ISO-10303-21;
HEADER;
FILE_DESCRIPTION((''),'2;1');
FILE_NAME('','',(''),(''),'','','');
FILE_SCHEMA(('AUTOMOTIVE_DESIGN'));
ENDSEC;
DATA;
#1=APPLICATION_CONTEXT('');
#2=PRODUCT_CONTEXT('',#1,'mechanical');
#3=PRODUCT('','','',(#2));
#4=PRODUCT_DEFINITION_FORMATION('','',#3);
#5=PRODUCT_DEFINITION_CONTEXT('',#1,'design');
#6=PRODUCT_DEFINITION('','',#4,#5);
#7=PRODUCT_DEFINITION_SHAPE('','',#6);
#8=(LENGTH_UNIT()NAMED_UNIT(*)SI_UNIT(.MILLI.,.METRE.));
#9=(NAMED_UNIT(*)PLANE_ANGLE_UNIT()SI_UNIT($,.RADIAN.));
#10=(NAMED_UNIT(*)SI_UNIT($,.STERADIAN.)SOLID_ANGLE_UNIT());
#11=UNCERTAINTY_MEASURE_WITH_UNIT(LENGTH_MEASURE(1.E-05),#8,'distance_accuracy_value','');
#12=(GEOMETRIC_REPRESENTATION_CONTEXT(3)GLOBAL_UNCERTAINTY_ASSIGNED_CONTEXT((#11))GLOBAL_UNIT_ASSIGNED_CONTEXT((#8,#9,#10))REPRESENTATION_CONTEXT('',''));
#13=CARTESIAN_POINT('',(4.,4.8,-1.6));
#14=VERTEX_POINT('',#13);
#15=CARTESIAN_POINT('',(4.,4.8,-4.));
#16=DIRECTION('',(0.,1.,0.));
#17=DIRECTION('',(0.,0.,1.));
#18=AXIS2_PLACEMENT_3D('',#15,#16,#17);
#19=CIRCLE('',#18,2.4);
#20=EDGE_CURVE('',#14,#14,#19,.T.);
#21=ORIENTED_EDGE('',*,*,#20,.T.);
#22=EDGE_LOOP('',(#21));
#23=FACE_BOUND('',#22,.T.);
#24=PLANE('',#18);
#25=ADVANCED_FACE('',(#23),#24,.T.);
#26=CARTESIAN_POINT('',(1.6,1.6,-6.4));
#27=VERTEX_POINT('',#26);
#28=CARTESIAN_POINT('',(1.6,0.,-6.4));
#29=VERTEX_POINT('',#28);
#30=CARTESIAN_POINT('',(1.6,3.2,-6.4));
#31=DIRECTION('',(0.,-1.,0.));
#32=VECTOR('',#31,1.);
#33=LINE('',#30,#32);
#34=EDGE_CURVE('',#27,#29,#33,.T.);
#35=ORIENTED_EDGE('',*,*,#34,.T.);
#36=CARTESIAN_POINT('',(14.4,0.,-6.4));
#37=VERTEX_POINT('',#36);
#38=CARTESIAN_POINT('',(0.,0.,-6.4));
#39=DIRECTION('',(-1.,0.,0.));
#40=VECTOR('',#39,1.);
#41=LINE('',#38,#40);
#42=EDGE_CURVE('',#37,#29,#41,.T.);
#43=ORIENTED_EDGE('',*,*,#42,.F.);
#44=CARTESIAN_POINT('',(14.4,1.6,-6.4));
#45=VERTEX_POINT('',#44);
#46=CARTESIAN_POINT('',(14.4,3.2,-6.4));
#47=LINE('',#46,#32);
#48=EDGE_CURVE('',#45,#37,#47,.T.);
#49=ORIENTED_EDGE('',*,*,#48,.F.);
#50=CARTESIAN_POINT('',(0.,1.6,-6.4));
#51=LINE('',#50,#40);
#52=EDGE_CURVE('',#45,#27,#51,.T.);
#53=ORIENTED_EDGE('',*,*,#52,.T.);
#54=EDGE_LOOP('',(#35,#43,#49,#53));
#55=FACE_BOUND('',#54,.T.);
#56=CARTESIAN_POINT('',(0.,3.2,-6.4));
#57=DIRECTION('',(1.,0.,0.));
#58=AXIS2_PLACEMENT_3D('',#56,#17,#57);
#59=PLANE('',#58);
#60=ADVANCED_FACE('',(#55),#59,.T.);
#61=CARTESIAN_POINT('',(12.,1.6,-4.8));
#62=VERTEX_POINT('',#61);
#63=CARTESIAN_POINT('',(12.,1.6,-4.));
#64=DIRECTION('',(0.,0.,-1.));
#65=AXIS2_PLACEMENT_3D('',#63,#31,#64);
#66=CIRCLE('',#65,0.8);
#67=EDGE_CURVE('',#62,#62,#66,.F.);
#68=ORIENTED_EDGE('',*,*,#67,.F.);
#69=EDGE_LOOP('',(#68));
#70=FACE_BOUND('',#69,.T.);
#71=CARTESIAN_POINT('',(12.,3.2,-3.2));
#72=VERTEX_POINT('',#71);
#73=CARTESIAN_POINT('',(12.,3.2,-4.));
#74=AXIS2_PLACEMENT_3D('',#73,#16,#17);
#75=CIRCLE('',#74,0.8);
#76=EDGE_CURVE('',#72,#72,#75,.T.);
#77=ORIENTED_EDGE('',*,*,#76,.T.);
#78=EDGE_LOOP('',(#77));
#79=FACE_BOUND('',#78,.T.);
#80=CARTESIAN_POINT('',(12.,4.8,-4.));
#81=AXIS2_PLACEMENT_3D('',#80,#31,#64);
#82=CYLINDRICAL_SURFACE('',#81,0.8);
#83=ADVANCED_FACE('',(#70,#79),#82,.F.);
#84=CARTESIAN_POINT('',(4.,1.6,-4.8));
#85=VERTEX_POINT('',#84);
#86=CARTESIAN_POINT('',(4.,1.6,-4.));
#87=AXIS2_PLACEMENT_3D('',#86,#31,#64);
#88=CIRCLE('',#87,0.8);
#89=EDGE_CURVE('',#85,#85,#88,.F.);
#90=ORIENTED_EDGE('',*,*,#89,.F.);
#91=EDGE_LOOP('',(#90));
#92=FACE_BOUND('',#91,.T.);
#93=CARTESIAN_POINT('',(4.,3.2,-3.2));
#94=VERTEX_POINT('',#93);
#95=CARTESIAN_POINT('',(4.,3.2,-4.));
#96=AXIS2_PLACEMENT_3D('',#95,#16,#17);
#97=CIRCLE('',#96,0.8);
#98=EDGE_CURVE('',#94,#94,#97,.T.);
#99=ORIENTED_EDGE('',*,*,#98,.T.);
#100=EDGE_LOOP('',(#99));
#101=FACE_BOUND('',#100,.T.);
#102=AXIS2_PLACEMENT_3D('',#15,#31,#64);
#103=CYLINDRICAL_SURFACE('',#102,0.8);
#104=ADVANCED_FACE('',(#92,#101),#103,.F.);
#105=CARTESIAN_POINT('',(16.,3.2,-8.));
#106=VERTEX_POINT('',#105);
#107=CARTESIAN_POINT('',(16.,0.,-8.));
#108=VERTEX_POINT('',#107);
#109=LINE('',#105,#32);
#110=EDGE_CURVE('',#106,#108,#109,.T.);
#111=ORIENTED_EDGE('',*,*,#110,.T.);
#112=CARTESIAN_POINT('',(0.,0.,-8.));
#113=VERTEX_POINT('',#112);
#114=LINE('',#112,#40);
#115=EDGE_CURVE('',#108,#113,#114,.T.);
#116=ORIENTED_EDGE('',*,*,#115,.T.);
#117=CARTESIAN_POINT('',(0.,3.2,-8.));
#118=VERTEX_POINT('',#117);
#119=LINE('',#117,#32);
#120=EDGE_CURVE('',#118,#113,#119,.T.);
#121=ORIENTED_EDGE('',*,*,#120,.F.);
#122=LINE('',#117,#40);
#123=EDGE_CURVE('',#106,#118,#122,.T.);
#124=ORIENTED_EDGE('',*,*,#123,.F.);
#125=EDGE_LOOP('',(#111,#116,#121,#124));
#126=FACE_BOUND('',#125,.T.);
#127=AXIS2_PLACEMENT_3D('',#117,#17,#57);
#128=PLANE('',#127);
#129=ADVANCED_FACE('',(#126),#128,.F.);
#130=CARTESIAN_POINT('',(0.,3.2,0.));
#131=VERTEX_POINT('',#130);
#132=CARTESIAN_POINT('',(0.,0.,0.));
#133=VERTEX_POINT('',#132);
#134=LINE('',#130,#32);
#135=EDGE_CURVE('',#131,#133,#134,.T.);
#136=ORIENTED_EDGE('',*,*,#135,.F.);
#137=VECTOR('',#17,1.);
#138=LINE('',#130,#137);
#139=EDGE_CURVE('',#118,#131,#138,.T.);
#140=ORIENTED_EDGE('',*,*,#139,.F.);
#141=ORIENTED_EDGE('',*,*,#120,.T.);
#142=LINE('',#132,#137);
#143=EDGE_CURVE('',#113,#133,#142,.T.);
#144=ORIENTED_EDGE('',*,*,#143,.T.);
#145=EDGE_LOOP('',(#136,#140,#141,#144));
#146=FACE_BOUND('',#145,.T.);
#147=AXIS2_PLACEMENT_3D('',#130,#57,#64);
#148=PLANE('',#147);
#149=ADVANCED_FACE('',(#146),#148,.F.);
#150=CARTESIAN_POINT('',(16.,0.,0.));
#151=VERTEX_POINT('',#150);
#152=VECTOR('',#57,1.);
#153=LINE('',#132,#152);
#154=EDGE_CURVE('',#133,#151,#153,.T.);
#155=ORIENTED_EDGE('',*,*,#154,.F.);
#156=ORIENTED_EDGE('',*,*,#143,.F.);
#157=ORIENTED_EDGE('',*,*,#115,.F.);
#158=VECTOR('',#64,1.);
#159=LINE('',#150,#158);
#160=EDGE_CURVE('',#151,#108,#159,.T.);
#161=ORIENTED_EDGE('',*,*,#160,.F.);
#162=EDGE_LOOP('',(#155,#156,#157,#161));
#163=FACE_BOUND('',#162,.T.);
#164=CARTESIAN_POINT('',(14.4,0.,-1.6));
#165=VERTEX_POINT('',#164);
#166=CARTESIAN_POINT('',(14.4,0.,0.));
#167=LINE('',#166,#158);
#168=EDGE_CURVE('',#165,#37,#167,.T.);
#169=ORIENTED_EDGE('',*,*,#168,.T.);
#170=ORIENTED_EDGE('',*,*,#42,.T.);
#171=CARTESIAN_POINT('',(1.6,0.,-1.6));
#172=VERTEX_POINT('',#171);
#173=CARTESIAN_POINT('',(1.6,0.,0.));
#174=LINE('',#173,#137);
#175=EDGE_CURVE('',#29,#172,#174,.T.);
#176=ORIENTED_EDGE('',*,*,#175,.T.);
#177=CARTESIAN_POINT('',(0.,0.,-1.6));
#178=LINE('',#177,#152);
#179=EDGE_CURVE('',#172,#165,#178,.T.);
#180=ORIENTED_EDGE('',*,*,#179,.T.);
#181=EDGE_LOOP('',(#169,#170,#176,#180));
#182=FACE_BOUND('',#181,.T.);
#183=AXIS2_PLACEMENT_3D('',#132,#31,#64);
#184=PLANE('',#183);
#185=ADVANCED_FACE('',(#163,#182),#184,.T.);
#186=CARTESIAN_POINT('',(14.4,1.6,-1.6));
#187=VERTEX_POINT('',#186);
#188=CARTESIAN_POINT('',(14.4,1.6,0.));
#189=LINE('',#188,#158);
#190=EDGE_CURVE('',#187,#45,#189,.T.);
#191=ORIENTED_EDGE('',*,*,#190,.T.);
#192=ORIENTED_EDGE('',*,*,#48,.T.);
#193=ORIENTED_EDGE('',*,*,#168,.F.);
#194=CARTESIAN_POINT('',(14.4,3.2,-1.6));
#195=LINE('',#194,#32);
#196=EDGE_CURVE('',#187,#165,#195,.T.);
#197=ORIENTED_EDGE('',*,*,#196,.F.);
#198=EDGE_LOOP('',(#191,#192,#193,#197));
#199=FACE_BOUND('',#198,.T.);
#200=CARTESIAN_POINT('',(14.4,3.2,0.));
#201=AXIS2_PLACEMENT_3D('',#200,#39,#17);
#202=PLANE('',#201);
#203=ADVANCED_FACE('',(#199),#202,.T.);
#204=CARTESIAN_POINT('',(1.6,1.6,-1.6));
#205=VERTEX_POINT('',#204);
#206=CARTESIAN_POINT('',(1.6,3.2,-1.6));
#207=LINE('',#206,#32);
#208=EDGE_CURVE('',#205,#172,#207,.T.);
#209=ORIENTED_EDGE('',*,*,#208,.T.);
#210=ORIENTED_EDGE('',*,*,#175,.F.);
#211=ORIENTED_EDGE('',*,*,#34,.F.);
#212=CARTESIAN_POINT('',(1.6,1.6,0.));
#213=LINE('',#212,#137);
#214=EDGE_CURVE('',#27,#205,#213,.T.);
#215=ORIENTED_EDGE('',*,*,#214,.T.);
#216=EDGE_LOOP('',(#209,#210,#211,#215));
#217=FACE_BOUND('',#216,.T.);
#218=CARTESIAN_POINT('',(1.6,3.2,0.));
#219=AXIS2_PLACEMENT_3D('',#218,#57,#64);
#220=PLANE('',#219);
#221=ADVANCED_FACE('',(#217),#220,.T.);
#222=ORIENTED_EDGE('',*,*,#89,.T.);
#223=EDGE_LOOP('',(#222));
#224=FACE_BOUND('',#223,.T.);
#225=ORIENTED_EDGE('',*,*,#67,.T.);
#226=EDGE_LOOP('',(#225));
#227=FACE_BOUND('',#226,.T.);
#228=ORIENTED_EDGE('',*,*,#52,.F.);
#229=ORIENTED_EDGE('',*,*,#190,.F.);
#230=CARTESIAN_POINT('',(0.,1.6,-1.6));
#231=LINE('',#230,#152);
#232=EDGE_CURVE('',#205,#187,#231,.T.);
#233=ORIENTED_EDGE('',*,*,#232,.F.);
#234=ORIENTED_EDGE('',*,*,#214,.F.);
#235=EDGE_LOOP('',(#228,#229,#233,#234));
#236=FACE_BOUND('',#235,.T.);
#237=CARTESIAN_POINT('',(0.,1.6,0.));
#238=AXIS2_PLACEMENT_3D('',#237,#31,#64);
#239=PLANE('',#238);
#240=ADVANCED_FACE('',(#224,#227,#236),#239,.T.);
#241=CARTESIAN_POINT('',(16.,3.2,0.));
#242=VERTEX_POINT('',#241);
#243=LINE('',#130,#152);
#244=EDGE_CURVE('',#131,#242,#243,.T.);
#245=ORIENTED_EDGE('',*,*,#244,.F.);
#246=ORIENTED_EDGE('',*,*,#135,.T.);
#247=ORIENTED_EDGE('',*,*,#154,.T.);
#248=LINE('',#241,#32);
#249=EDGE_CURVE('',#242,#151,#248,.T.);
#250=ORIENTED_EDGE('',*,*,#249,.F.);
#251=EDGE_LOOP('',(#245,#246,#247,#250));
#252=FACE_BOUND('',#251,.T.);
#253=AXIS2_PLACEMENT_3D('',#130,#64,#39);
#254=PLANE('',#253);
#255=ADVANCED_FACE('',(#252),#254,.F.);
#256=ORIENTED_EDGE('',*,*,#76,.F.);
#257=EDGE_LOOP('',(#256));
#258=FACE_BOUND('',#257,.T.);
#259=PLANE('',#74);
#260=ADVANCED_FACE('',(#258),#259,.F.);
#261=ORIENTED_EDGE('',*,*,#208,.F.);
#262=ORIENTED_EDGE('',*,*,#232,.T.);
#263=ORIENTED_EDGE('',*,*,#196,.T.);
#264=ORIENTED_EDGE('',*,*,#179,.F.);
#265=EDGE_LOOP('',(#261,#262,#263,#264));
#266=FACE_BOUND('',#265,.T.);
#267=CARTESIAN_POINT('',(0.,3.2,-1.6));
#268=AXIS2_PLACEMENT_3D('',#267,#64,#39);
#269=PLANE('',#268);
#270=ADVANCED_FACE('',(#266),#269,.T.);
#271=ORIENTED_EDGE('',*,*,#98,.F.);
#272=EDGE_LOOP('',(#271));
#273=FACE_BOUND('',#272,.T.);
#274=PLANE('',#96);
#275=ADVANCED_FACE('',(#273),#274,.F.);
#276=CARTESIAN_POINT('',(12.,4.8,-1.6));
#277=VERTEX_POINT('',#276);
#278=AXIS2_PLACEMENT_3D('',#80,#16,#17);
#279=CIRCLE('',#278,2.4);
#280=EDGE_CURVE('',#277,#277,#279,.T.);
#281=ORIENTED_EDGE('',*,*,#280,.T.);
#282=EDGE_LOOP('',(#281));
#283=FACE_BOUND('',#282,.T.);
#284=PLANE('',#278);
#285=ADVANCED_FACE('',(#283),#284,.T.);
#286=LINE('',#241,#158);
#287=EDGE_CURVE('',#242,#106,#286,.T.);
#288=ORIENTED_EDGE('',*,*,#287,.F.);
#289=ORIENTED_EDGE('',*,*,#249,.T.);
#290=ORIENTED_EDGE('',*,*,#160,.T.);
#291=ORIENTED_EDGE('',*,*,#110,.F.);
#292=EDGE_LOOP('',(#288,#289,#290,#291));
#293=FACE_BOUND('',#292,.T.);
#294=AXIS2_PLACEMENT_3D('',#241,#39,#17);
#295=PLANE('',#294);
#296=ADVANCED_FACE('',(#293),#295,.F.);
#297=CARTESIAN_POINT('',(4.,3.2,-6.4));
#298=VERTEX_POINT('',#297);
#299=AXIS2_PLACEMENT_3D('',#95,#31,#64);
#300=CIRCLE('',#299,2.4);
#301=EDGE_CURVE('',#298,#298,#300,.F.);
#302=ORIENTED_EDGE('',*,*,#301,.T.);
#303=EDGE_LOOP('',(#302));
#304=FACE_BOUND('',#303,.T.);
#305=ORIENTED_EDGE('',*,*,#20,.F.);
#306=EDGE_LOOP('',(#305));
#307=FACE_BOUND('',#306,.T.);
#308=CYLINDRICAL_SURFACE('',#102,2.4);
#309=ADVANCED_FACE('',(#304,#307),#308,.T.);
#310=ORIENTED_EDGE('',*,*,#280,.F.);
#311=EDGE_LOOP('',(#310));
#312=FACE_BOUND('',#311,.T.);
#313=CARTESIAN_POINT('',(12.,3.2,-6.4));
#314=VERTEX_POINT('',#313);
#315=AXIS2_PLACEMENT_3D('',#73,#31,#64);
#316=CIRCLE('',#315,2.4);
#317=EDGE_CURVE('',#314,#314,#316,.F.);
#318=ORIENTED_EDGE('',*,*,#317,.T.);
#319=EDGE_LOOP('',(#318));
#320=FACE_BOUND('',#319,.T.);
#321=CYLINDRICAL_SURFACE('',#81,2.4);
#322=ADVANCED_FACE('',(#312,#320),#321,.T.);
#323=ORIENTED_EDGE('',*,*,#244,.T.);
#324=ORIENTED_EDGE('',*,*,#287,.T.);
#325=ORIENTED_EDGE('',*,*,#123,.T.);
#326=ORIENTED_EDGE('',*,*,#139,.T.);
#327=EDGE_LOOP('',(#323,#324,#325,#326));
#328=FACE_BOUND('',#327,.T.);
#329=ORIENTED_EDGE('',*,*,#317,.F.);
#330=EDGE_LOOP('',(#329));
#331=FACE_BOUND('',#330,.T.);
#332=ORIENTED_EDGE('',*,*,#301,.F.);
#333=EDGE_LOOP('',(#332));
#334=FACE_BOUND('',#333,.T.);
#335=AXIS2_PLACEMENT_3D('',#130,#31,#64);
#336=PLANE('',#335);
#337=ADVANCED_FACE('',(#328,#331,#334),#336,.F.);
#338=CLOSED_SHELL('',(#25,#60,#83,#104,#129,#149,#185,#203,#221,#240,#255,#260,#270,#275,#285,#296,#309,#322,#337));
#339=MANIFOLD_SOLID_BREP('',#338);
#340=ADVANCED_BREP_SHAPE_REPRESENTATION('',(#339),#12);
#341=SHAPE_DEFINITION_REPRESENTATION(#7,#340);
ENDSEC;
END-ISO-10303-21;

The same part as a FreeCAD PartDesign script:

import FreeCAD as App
import Part
import Sketcher

V = App.Vector


def faces_at(feature, points):
    """Names of the faces that lie closest to the given points."""
    faces = feature.Shape.Faces
    near = lambda p: min(range(len(faces)), key=lambda i: faces[i].distToShape(Part.Vertex(*p))[0])
    return sorted({f"Face{near(p) + 1}" for p in points})

doc = App.newDocument("Part")
body = doc.addObject("PartDesign::Body", "Body")

sketch1 = body.newObject("Sketcher::SketchObject", "Sketch")
sketch1.AttachmentSupport = (doc.getObject("XZ_Plane"), [""])
sketch1.MapMode = "FlatFace"
sketch1.addGeometry(Part.LineSegment(V(0, -8, 0), V(0, 0, 0)), False)
sketch1.addGeometry(Part.LineSegment(V(0, 0, 0), V(16, 0, 0)), False)
sketch1.addGeometry(Part.LineSegment(V(16, 0, 0), V(16, -8, 0)), False)
sketch1.addGeometry(Part.LineSegment(V(16, -8, 0), V(0, -8, 0)), False)
sketch1.addConstraint(Sketcher.Constraint("Coincident", 0, 2, 1, 1))
sketch1.addConstraint(Sketcher.Constraint("Coincident", 1, 2, 2, 1))
sketch1.addConstraint(Sketcher.Constraint("Coincident", 2, 2, 3, 1))
sketch1.addConstraint(Sketcher.Constraint("Coincident", 3, 2, 0, 1))
sketch1.addConstraint(Sketcher.Constraint("Vertical", 0))
sketch1.addConstraint(Sketcher.Constraint("Horizontal", 1))
sketch1.addConstraint(Sketcher.Constraint("Vertical", 2))
sketch1.addConstraint(Sketcher.Constraint("Horizontal", 3))
sketch1.addConstraint(Sketcher.Constraint("Coincident", 0, 2, -1, 1))
sketch1.addConstraint(Sketcher.Constraint("DistanceX", 1, 1, 1, 2, 16.0))
sketch1.addConstraint(Sketcher.Constraint("DistanceY", 0, 1, 0, 2, 8.0))
pad1 = body.newObject("PartDesign::Pad", "Pad")
pad1.Profile = sketch1
pad1.Length = 3.2
pad1.Reversed = True

sketch2 = body.newObject("Sketcher::SketchObject", "Sketch001")
sketch2.AttachmentSupport = (doc.getObject("XZ_Plane"), [""])
sketch2.MapMode = "FlatFace"
sketch2.AttachmentOffset = App.Placement(V(0, 0, -3.2), App.Rotation())
sketch2.addGeometry(Part.Circle(V(12, -4, 0), V(0, 0, 1), 2.4), False)
sketch2.addConstraint(Sketcher.Constraint("Diameter", 0, 4.8))
sketch2.addConstraint(Sketcher.Constraint("DistanceX", -1, 1, 0, 3, 12.0))
sketch2.addConstraint(Sketcher.Constraint("DistanceY", 0, 3, -1, 1, 4.0))
pad2 = body.newObject("PartDesign::Pad", "Pad001")
pad2.Profile = sketch2
pad2.Length = 1.6
pad2.Reversed = True
doc.recompute()

linearpattern = body.newObject("PartDesign::LinearPattern", "LinearPattern")
linearpattern.Originals = [pad2]
linearpattern.Direction = (doc.getObject("X_Axis"), [""])
linearpattern.Mode = "offset"
linearpattern.Offset = 8
linearpattern.Occurrences = 2
linearpattern.Reversed = True
body.Tip = linearpattern
doc.recompute()

thickness = body.newObject("PartDesign::Thickness", "Thickness")
thickness.Base = (linearpattern, faces_at(linearpattern, [(8, 0, -4)]))
thickness.Value = 1.6
thickness.Reversed = True
thickness.Join = "Intersection"

doc.recompute()
